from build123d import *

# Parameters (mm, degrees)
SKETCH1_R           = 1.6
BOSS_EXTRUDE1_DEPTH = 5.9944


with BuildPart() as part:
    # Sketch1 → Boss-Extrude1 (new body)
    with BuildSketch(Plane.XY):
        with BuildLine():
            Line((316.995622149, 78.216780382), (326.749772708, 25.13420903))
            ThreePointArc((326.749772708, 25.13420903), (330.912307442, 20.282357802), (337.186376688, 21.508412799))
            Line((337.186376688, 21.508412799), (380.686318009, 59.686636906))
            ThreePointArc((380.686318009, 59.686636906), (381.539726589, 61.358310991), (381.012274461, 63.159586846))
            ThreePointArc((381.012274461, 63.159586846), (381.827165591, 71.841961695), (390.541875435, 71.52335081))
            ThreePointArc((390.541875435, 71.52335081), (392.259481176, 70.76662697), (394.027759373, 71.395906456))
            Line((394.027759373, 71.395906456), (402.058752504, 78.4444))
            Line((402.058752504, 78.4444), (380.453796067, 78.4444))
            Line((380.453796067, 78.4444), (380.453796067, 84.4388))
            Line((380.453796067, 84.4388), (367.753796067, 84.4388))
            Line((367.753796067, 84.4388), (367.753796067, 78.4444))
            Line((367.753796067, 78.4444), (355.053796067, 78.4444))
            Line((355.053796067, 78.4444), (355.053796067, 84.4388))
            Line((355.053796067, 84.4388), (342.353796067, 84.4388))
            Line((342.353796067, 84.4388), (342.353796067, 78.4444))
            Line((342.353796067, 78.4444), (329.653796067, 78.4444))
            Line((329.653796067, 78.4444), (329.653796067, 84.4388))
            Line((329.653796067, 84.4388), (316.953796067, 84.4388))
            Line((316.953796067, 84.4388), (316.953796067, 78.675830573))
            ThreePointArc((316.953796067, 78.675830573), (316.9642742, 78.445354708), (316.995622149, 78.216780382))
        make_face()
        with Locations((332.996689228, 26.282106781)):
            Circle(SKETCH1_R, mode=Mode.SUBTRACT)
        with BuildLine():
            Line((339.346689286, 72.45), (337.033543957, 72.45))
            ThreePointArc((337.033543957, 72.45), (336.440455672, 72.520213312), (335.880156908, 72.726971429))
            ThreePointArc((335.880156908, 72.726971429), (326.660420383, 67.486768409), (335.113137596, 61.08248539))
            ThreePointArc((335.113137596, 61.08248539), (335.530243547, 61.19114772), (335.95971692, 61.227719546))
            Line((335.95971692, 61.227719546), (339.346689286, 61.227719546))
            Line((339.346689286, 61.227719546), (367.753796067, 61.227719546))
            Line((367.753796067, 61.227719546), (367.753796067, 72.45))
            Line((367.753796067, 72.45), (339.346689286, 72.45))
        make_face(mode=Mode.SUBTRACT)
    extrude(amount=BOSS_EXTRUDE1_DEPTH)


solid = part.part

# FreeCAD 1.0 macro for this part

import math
import FreeCAD as App
import Part
import Sketcher
from FreeCAD import Vector
Q = App.Units.Quantity

doc = App.newDocument("Part")
params = doc.addObject("Spreadsheet::Sheet", "Params")
for row, (alias, value) in enumerate([
    ("sketch1_radius", "0.1 in"),
    ("sketch1_radius2", "0.25 in"),
    ("sketch1_width", "0.5 in"),
    ("sketch1_height", "0.236 in"),
    ("pad1_length", "0.236 in"),
], start=1):
    params.set(f"A{row}", alias)
    params.set(f"B{row}", "=" + value)
    params.setAlias(f"B{row}", alias)

body = doc.addObject("PartDesign::Body", "Body")

sketch1 = body.newObject("Sketcher::SketchObject", "Sketch")
sketch1.AttachmentSupport = (doc.getObject("XY_Plane"), [""])
sketch1.MapMode = "FlatFace"
sketch1.addGeometry([
    Part.LineSegment(Vector(316.995622, 78.21678, 0), Vector(326.749773, 25.134209, 0)),
    Part.ArcOfCircle(Part.Circle(Vector(332.996689, 26.282107, 0), Vector(0, 0, 1), 6.351507), math.radians(-169.587809), math.radians(-48.727821)),
    Part.LineSegment(Vector(337.186377, 21.508413, 0), Vector(380.686318, 59.686637, 0)),
    Part.ArcOfCircle(Part.Circle(Vector(379.010841, 61.595662, 0), Vector(0, 0, 1), 2.54), math.radians(-48.727821), math.radians(38.004154)),
    Part.ArcOfCircle(Part.Circle(Vector(386.015859, 67.0694, 0), Vector(0, 0, 1), 6.35), math.radians(44.540204), math.radians(218.004154)),
    Part.ArcOfCircle(Part.Circle(Vector(392.352282, 73.304931, 0), Vector(0, 0, 1), 2.54), math.radians(-135.459796), math.radians(-48.727821)),
    Part.LineSegment(Vector(394.027759, 71.395906, 0), Vector(402.058753, 78.4444, 0)),
    Part.LineSegment(Vector(402.058753, 78.4444, 0), Vector(380.453796, 78.4444, 0)),
    Part.LineSegment(Vector(380.453796, 78.4444, 0), Vector(380.453796, 84.4388, 0)),
    Part.LineSegment(Vector(380.453796, 84.4388, 0), Vector(367.753796, 84.4388, 0)),
    Part.LineSegment(Vector(367.753796, 84.4388, 0), Vector(367.753796, 78.4444, 0)),
    Part.LineSegment(Vector(367.753796, 78.4444, 0), Vector(355.053796, 78.4444, 0)),
    Part.LineSegment(Vector(355.053796, 78.4444, 0), Vector(355.053796, 84.4388, 0)),
    Part.LineSegment(Vector(355.053796, 84.4388, 0), Vector(342.353796, 84.4388, 0)),
    Part.LineSegment(Vector(342.353796, 84.4388, 0), Vector(342.353796, 78.4444, 0)),
    Part.LineSegment(Vector(342.353796, 78.4444, 0), Vector(329.653796, 78.4444, 0)),
    Part.LineSegment(Vector(329.653796, 78.4444, 0), Vector(329.653796, 84.4388, 0)),
    Part.LineSegment(Vector(329.653796, 84.4388, 0), Vector(316.953796, 84.4388, 0)),
    Part.LineSegment(Vector(316.953796, 84.4388, 0), Vector(316.953796, 78.675831, 0)),
    Part.ArcOfCircle(Part.Circle(Vector(319.493796, 78.675831, 0), Vector(0, 0, 1), 2.54), math.radians(-180), math.radians(-169.587809)),
    Part.Circle(Vector(332.996689, 26.282107, 0), Vector(0, 0, 1), 1.6),
    Part.ArcOfCircle(Part.Circle(Vector(337.033544, 74.99, 0), Vector(0, 0, 1), 2.54), math.radians(-117.006359), math.radians(-90)),
    Part.LineSegment(Vector(337.033544, 72.45, 0), Vector(367.753796, 72.45, 0)),
    Part.LineSegment(Vector(367.753796, 72.45, 0), Vector(367.753796, 61.22772, 0)),
    Part.LineSegment(Vector(367.753796, 61.22772, 0), Vector(335.959717, 61.22772, 0)),
    Part.ArcOfCircle(Part.Circle(Vector(335.959717, 58.68772, 0), Vector(0, 0, 1), 2.54), math.radians(90), math.radians(109.469131)),
    Part.ArcOfCircle(Part.Circle(Vector(332.996689, 67.0694, 0), Vector(0, 0, 1), 6.35), math.radians(62.993641), math.radians(289.469131)),
], False)
sketch1.addConstraint([
    Sketcher.Constraint("Tangent", 0, 2, 1, 1),
    Sketcher.Constraint("Tangent", 1, 2, 2, 1),
    Sketcher.Constraint("Tangent", 2, 2, 3, 1),
    Sketcher.Constraint("Tangent", 3, 2, 4, 2),
    Sketcher.Constraint("Tangent", 4, 1, 5, 1),
    Sketcher.Constraint("Tangent", 5, 2, 6, 1),
    Sketcher.Constraint("Coincident", 6, 2, 7, 1),
    Sketcher.Constraint("Coincident", 7, 2, 8, 1),
    Sketcher.Constraint("Coincident", 8, 2, 9, 1),
    Sketcher.Constraint("Coincident", 9, 2, 10, 1),
    Sketcher.Constraint("Coincident", 10, 2, 11, 1),
    Sketcher.Constraint("Coincident", 11, 2, 12, 1),
    Sketcher.Constraint("Coincident", 12, 2, 13, 1),
    Sketcher.Constraint("Coincident", 13, 2, 14, 1),
    Sketcher.Constraint("Coincident", 14, 2, 15, 1),
    Sketcher.Constraint("Coincident", 15, 2, 16, 1),
    Sketcher.Constraint("Coincident", 16, 2, 17, 1),
    Sketcher.Constraint("Coincident", 17, 2, 18, 1),
    Sketcher.Constraint("Tangent", 18, 2, 19, 1),
    Sketcher.Constraint("Tangent", 19, 2, 0, 1),
    Sketcher.Constraint("Tangent", 21, 2, 22, 1),
    Sketcher.Constraint("Coincident", 22, 2, 23, 1),
    Sketcher.Constraint("Coincident", 23, 2, 24, 1),
    Sketcher.Constraint("Tangent", 24, 2, 25, 1),
    Sketcher.Constraint("Tangent", 25, 2, 26, 2),
    Sketcher.Constraint("Tangent", 26, 1, 21, 1),
    Sketcher.Constraint("Horizontal", 7),
    Sketcher.Constraint("Vertical", 8),
    Sketcher.Constraint("Horizontal", 9),
    Sketcher.Constraint("Vertical", 10),
    Sketcher.Constraint("Horizontal", 11),
    Sketcher.Constraint("Vertical", 12),
    Sketcher.Constraint("Horizontal", 13),
    Sketcher.Constraint("Vertical", 14),
    Sketcher.Constraint("Horizontal", 15),
    Sketcher.Constraint("Vertical", 16),
    Sketcher.Constraint("Horizontal", 17),
    Sketcher.Constraint("Vertical", 18),
    Sketcher.Constraint("Horizontal", 22),
    Sketcher.Constraint("Vertical", 23),
    Sketcher.Constraint("Horizontal", 24),
    Sketcher.Constraint("Coincident", 20, 3, 1, 3),
    Sketcher.Constraint("Equal", 3, 5),
    Sketcher.Constraint("Equal", 5, 19),
    Sketcher.Constraint("Equal", 19, 21),
    Sketcher.Constraint("Equal", 21, 25),
    Sketcher.Constraint("Equal", 4, 26),
    Sketcher.Constraint("Parallel", 2, 6),
    Sketcher.Constraint("Horizontal", 4, 3, 26, 3),
    Sketcher.Constraint("Horizontal", 7, 2, 10, 2),
    Sketcher.Constraint("Horizontal", 9, 2, 12, 2),
    Sketcher.Constraint("Horizontal", 11, 2, 14, 2),
    Sketcher.Constraint("Horizontal", 13, 2, 16, 2),
    Sketcher.Constraint("Vertical", 20, 3, 26, 3),
    Sketcher.Constraint("Vertical", 10, 2, 22, 2),
    Sketcher.Constraint("Equal", 9, 11),
    Sketcher.Constraint("Equal", 11, 13),
    Sketcher.Constraint("Equal", 13, 15),
    Sketcher.Constraint("Equal", 15, 17),
    Sketcher.Constraint("Radius", 3, Q("0.1 in")),
    Sketcher.Constraint("Radius", 4, Q("0.25 in")),
    Sketcher.Constraint("DistanceX", 9, 2, 9, 1, Q("0.5 in")),
    Sketcher.Constraint("Diameter", 20, Q("3.2 mm")),
    Sketcher.Constraint("DistanceY", 8, 1, 8, 2, Q("0.236 in")),
    Sketcher.Constraint("DistanceY", 21, 3, 11, 2, Q("0.136 in")),
    Sketcher.Constraint("Radius", 1, Q("6.351507 mm")),
    Sketcher.Constraint("DistanceX", 24, 2, 24, 1, Q("31.794079 mm")),
    Sketcher.Constraint("DistanceY", 18, 2, 18, 1, Q("5.762969 mm")),
    Sketcher.Constraint("DistanceY", 23, 2, 23, 1, Q("11.22228 mm")),
    Sketcher.Constraint("DistanceY", -1, 1, 4, 3, Q("67.0694 mm")),
    Sketcher.Constraint("DistanceY", -1, 1, 21, 3, Q("74.99 mm")),
    Sketcher.Constraint("DistanceY", 5, 3, 19, 3, Q("5.370899 mm")),
    Sketcher.Constraint("DistanceX", 25, 3, 2, 2, Q("44.726601 mm")),
    Sketcher.Constraint("DistanceX", 3, 2, 4, 1, Q("9.529601 mm")),
    Sketcher.Constraint("DistanceX", 4, 3, 5, 2, Q("8.0119 mm")),
    Sketcher.Constraint("DistanceX", -1, 1, 1, 3, Q("332.996689 mm")),
])
sketch1.setExpression("Constraints[59]", "Params.sketch1_radius")
sketch1.setExpression("Constraints[60]", "Params.sketch1_radius2")
sketch1.setExpression("Constraints[61]", "Params.sketch1_width")
sketch1.setExpression("Constraints[63]", "Params.sketch1_height")
pad1 = body.newObject("PartDesign::Pad", "Pad")
pad1.Profile = sketch1
pad1.setExpression("Length", "Params.pad1_length")

doc.recompute()
